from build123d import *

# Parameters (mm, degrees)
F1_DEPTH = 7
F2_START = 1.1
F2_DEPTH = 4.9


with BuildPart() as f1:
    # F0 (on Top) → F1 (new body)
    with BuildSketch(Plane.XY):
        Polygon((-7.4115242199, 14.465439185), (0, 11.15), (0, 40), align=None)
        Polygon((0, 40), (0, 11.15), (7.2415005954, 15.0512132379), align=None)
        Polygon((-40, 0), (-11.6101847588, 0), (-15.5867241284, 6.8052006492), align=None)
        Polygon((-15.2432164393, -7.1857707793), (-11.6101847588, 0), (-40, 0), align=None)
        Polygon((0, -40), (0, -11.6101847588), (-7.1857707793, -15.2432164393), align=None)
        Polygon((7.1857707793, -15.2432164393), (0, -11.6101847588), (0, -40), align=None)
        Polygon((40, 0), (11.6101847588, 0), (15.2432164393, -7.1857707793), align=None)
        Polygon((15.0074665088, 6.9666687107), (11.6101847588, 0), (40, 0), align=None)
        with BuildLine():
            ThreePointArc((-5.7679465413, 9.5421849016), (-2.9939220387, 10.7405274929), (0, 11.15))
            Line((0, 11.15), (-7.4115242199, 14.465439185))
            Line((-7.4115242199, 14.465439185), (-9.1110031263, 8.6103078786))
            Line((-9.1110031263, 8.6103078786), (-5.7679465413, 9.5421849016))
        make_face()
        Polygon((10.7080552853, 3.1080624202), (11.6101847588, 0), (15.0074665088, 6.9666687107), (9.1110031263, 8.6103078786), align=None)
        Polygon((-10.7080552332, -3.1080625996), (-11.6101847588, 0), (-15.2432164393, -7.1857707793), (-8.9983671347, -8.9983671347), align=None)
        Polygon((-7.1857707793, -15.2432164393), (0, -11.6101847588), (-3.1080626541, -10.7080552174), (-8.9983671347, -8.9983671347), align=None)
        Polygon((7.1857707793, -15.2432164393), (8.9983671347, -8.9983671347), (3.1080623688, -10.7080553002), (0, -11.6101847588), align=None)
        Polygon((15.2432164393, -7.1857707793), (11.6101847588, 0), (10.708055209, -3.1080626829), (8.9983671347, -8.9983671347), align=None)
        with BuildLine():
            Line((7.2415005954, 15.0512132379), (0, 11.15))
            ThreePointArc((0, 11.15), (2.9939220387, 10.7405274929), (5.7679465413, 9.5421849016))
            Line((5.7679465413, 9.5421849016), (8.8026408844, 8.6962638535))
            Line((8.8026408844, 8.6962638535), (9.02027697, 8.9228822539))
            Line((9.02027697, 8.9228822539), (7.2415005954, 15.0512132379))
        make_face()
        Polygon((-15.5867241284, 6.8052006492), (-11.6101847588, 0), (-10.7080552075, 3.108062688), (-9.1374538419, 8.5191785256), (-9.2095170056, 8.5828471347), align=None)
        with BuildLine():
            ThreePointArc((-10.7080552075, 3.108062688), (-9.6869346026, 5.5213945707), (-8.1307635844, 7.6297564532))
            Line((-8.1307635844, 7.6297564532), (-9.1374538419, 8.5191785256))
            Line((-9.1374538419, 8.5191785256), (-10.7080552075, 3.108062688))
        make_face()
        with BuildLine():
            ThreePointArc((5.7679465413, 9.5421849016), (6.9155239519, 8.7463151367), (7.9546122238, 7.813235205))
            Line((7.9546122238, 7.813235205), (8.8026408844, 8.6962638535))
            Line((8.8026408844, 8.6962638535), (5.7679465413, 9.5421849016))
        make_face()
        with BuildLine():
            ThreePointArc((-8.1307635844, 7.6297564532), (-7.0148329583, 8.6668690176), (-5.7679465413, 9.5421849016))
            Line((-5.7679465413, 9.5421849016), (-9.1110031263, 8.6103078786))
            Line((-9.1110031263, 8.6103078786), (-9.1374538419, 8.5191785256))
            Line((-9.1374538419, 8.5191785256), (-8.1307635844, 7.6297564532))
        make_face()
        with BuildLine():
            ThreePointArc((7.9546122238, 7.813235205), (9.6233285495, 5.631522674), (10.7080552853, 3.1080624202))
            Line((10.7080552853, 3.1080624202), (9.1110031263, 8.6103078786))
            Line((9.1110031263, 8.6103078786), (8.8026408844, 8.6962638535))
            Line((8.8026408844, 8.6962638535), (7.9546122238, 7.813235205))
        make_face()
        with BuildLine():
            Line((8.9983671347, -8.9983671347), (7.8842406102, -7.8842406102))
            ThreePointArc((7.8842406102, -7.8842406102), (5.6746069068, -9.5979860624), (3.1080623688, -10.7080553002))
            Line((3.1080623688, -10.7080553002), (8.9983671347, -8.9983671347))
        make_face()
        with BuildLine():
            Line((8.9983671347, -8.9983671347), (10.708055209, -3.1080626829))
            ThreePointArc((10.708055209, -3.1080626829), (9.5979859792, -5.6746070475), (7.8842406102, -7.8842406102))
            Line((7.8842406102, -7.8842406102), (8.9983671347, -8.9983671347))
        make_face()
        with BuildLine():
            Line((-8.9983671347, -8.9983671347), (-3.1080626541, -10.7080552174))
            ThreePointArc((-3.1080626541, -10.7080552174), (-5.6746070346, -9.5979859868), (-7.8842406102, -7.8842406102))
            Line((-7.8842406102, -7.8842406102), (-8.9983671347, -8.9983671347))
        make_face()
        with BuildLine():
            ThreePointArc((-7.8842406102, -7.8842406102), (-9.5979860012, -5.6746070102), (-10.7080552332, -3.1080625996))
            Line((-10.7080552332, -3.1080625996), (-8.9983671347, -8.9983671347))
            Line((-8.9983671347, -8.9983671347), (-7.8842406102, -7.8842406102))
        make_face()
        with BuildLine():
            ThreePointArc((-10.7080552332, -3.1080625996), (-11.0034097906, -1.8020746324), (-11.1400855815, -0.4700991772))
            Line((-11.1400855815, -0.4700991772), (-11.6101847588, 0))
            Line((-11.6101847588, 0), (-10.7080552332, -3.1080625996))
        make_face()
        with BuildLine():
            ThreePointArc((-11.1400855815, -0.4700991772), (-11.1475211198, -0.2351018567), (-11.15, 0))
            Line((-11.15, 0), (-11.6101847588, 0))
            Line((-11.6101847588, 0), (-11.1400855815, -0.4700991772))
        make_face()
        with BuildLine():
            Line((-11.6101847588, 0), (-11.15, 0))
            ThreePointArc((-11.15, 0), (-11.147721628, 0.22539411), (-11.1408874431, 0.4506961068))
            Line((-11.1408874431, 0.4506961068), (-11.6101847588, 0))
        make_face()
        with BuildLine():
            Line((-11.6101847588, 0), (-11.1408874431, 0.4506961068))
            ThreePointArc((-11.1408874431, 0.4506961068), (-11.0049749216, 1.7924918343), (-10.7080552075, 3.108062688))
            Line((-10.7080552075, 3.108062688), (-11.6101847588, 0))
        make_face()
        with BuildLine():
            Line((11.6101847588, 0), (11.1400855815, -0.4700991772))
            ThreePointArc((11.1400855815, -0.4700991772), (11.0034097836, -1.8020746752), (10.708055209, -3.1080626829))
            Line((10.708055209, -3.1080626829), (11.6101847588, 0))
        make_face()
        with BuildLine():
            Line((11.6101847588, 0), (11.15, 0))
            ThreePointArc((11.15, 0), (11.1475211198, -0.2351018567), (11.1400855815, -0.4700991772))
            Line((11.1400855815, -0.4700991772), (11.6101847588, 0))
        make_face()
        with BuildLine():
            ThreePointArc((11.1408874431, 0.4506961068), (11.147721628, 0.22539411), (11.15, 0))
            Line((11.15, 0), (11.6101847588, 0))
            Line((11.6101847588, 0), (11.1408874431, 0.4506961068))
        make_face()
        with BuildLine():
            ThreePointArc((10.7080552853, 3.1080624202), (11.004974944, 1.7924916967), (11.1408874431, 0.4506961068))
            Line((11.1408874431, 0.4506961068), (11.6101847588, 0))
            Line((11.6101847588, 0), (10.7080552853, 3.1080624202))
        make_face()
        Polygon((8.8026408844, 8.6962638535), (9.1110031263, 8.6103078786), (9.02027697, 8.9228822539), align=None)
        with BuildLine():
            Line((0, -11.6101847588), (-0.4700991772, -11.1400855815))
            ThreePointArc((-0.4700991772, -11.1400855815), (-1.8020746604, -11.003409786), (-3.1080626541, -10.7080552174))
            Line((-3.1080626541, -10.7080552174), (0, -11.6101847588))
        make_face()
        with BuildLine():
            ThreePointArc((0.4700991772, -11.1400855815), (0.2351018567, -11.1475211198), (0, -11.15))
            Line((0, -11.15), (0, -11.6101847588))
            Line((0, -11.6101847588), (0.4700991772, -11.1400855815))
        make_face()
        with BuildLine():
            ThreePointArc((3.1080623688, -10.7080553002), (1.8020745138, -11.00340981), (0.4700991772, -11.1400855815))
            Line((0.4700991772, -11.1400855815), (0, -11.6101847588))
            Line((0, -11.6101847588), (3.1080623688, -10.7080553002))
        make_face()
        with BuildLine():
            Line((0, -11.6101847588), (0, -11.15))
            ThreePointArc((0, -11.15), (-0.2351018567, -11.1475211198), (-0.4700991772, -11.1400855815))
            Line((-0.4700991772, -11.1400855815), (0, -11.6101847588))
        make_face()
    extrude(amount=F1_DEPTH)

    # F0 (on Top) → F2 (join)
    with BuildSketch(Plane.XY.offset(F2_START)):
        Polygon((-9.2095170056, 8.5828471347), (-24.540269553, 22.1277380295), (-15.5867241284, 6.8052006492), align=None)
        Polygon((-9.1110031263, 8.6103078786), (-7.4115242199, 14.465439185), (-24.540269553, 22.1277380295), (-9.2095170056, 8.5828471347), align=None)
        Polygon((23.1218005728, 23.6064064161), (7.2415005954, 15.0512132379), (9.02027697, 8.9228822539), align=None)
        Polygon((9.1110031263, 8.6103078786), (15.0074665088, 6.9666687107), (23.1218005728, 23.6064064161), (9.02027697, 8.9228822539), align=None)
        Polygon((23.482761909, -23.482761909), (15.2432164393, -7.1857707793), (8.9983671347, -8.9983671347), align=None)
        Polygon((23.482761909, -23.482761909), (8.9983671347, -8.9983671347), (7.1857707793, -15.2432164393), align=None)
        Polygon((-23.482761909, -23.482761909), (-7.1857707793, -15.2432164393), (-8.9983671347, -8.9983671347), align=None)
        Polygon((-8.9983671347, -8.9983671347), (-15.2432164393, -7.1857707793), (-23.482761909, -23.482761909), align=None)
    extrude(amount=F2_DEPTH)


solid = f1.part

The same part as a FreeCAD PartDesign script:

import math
import FreeCAD as App
import Part
import Sketcher

V = App.Vector
Q = App.Units.Quantity

doc = App.newDocument("Part")
body = doc.addObject("PartDesign::Body", "Body")

# Sketch on XY plane
sketch1 = body.newObject("Sketcher::SketchObject", "Sketch")
sketch1.AttachmentSupport = (doc.getObject("XY_Plane"), [""])
sketch1.MapMode = "FlatFace"
sketch1.addGeometry([
    Part.LineSegment(V(-15.24, -7.19, 0), V(-9, -9, 0)),  # 0
    Part.LineSegment(V(-9, -9, 0), V(-7.19, -15.24, 0)),  # 1
    Part.LineSegment(V(-7.19, -15.24, 0), V(0, -40, 0)),  # 2
    Part.LineSegment(V(0, -40, 0), V(7.19, -15.24, 0)),  # 3
    Part.LineSegment(V(7.19, -15.24, 0), V(9, -9, 0)),  # 4
    Part.LineSegment(V(9, -9, 0), V(15.24, -7.19, 0)),  # 5
    Part.LineSegment(V(15.24, -7.19, 0), V(40, 0, 0)),  # 6
    Part.LineSegment(V(40, 0, 0), V(15.01, 6.97, 0)),  # 7
    Part.LineSegment(V(15.01, 6.97, 0), V(9.11, 8.61, 0)),  # 8
    Part.LineSegment(V(9.11, 8.61, 0), V(9.02, 8.92, 0)),  # 9
    Part.LineSegment(V(9.02, 8.92, 0), V(7.24, 15.05, 0)),  # 10
    Part.LineSegment(V(7.24, 15.05, 0), V(0, 40, 0)),  # 11
    Part.LineSegment(V(0, 40, 0), V(-7.41, 14.47, 0)),  # 12
    Part.LineSegment(V(-7.41, 14.47, 0), V(-9.11, 8.61, 0)),  # 13
    Part.LineSegment(V(-9.11, 8.61, 0), V(-9.14, 8.52, 0)),  # 14
    Part.LineSegment(V(-9.14, 8.52, 0), V(-9.21, 8.58, 0)),  # 15
    Part.LineSegment(V(-9.21, 8.58, 0), V(-15.59, 6.81, 0)),  # 16
    Part.LineSegment(V(-15.59, 6.81, 0), V(-40, 0, 0)),  # 17
    Part.LineSegment(V(-40, 0, 0), V(-15.24, -7.19, 0)),  # 18
    Part.ArcOfCircle(Part.Circle(V(0, 0, 0), V(0, 0, 1), 11.15), math.radians(-135), math.radians(-106)),  # 19
    Part.ArcOfCircle(Part.Circle(V(0, 0, 0), V(0, 0, 1), 11.15), math.radians(-164), math.radians(-135)),  # 20
    Part.ArcOfCircle(Part.Circle(V(0, 0, 0), V(0, 0, 1), 11.15), math.radians(-177.58), math.radians(-163.81)),  # 21
    Part.ArcOfCircle(Part.Circle(V(0, 0, 0), V(0, 0, 1), 11.15), math.radians(-180), math.radians(-177.58)),  # 22
    Part.ArcOfCircle(Part.Circle(V(0, 0, 0), V(0, 0, 1), 11.15), math.radians(177.68), math.radians(180)),  # 23
    Part.ArcOfCircle(Part.Circle(V(0, 0, 0), V(0, 0, 1), 11.15), math.radians(163.81), math.radians(177.68)),  # 24
    Part.ArcOfCircle(Part.Circle(V(0, 0, 0), V(0, 0, 1), 11.15), math.radians(137), math.radians(164)),  # 25
    Part.ArcOfCircle(Part.Circle(V(0, 0, 0), V(0, 0, 1), 11.15), math.radians(121.15), math.radians(136.82)),  # 26
    Part.ArcOfCircle(Part.Circle(V(0, 0, 0), V(0, 0, 1), 11.15), math.radians(90), math.radians(121)),  # 27
    Part.ArcOfCircle(Part.Circle(V(0, 0, 0), V(0, 0, 1), 11.15), math.radians(59), math.radians(90)),  # 28
    Part.ArcOfCircle(Part.Circle(V(0, 0, 0), V(0, 0, 1), 11.15), math.radians(44.49), math.radians(58.85)),  # 29
    Part.ArcOfCircle(Part.Circle(V(0, 0, 0), V(0, 0, 1), 11.15), math.radians(16), math.radians(44)),  # 30
    Part.ArcOfCircle(Part.Circle(V(0, 0, 0), V(0, 0, 1), 11.15), math.radians(2.32), math.radians(16.19)),  # 31
    Part.ArcOfCircle(Part.Circle(V(0, 0, 0), V(0, 0, 1), 11.15), math.radians(0), math.radians(2.32)),  # 32
    Part.ArcOfCircle(Part.Circle(V(0, 0, 0), V(0, 0, 1), 11.15), math.radians(-2.42), math.radians(0)),  # 33
    Part.ArcOfCircle(Part.Circle(V(0, 0, 0), V(0, 0, 1), 11.15), math.radians(-16.19), math.radians(-2.42)),  # 34
    Part.ArcOfCircle(Part.Circle(V(0, 0, 0), V(0, 0, 1), 11.15), math.radians(-45), math.radians(-16)),  # 35
    Part.ArcOfCircle(Part.Circle(V(0, 0, 0), V(0, 0, 1), 11.15), math.radians(-74), math.radians(-45)),  # 36
    Part.ArcOfCircle(Part.Circle(V(0, 0, 0), V(0, 0, 1), 11.15), math.radians(-87.58), math.radians(-73.81)),  # 37
    Part.ArcOfCircle(Part.Circle(V(0, 0, 0), V(0, 0, 1), 11.15), math.radians(-90), math.radians(-87.58)),  # 38
    Part.ArcOfCircle(Part.Circle(V(0, 0, 0), V(0, 0, 1), 11.15), math.radians(-92.42), math.radians(-90)),  # 39
    Part.ArcOfCircle(Part.Circle(V(0, 0, 0), V(0, 0, 1), 11.15), math.radians(-106.19), math.radians(-92.42)),  # 40
], False)
sketch1.addConstraint([
    Sketcher.Constraint("Coincident", 0, 2, 1, 1),
    Sketcher.Constraint("Coincident", 1, 2, 2, 1),
    Sketcher.Constraint("Coincident", 2, 2, 3, 1),
    Sketcher.Constraint("Coincident", 3, 2, 4, 1),
    Sketcher.Constraint("Coincident", 4, 2, 5, 1),
    Sketcher.Constraint("Coincident", 5, 2, 6, 1),
    Sketcher.Constraint("Coincident", 6, 2, 7, 1),
    Sketcher.Constraint("Coincident", 7, 2, 8, 1),
    Sketcher.Constraint("Coincident", 8, 2, 9, 1),
    Sketcher.Constraint("Coincident", 9, 2, 10, 1),
    Sketcher.Constraint("Coincident", 10, 2, 11, 1),
    Sketcher.Constraint("Coincident", 11, 2, 12, 1),
    Sketcher.Constraint("Coincident", 12, 2, 13, 1),
    Sketcher.Constraint("Coincident", 13, 2, 14, 1),
    Sketcher.Constraint("Coincident", 14, 2, 15, 1),
    Sketcher.Constraint("Coincident", 15, 2, 16, 1),
    Sketcher.Constraint("Coincident", 16, 2, 17, 1),
    Sketcher.Constraint("Coincident", 17, 2, 18, 1),
    Sketcher.Constraint("Coincident", 18, 2, 0, 1),
    Sketcher.Constraint("Tangent", 19, 1, 20, 2),
    Sketcher.Constraint("Tangent", 20, 1, 21, 2),
    Sketcher.Constraint("Tangent", 21, 1, 22, 2),
    Sketcher.Constraint("Tangent", 22, 1, 23, 2),
    Sketcher.Constraint("Tangent", 23, 1, 24, 2),
    Sketcher.Constraint("Tangent", 24, 1, 25, 2),
    Sketcher.Constraint("Tangent", 25, 1, 26, 2),
    Sketcher.Constraint("Tangent", 26, 1, 27, 2),
    Sketcher.Constraint("Tangent", 27, 1, 28, 2),
    Sketcher.Constraint("Tangent", 28, 1, 29, 2),
    Sketcher.Constraint("Tangent", 29, 1, 30, 2),
    Sketcher.Constraint("Tangent", 30, 1, 31, 2),
    Sketcher.Constraint("Tangent", 31, 1, 32, 2),
    Sketcher.Constraint("Tangent", 32, 1, 33, 2),
    Sketcher.Constraint("Tangent", 33, 1, 34, 2),
    Sketcher.Constraint("Tangent", 34, 1, 35, 2),
    Sketcher.Constraint("Tangent", 35, 1, 36, 2),
    Sketcher.Constraint("Tangent", 36, 1, 37, 2),
    Sketcher.Constraint("Tangent", 37, 1, 38, 2),
    Sketcher.Constraint("Tangent", 38, 1, 39, 2),
    Sketcher.Constraint("Tangent", 39, 1, 40, 2),
    Sketcher.Constraint("Tangent", 40, 1, 19, 2),
    Sketcher.Constraint("Coincident", 19, 3, -1, 1),
    Sketcher.Constraint("Coincident", 21, 3, -1, 1),
    Sketcher.Constraint("Coincident", 23, 3, -1, 1),
    Sketcher.Constraint("Coincident", 25, 3, -1, 1),
    Sketcher.Constraint("Coincident", 27, 3, -1, 1),
    Sketcher.Constraint("Coincident", 29, 3, -1, 1),
    Sketcher.Constraint("Coincident", 31, 3, -1, 1),
    Sketcher.Constraint("Coincident", 33, 3, -1, 1),
    Sketcher.Constraint("Coincident", 35, 3, -1, 1),
    Sketcher.Constraint("Coincident", 37, 3, -1, 1),
    Sketcher.Constraint("Equal", 37, 38),
    Sketcher.Constraint("Symmetric", 2, 2, 11, 2, -1, 1),
    Sketcher.Constraint("Symmetric", 6, 2, 17, 2, -1, 1),
    Sketcher.Constraint("Symmetric", 1, 2, 3, 2, -2),
    Sketcher.Constraint("Symmetric", 0, 2, 4, 2, -2),
    Sketcher.Constraint("Symmetric", 8, 2, 13, 2, -2),
    Sketcher.Constraint("Symmetric", 5, 2, 18, 2, -2),
    Sketcher.Constraint("PointOnObject", 2, 2, -2),
    Sketcher.Constraint("PointOnObject", 6, 2, -1),
    Sketcher.Constraint("PointOnObject", 22, 1, -1),
    Sketcher.Constraint("PointOnObject", 27, 1, -2),
    Sketcher.Constraint("PointOnObject", 32, 1, -1),
    Sketcher.Constraint("PointOnObject", 38, 1, -2),
    Sketcher.Constraint("Parallel", 1, 2),
    Sketcher.Constraint("Perpendicular", 0, 3),
    Sketcher.Constraint("Parallel", 5, 6),
    Sketcher.Constraint("Parallel", 7, 8),
    Sketcher.Constraint("Perpendicular", 6, 9),
    Sketcher.Constraint("Parallel", 9, 10),
    Sketcher.Constraint("Parallel", 10, 11),
    Sketcher.Constraint("Parallel", 4, 12),
    Sketcher.Constraint("Parallel", 13, 14),
    Sketcher.Constraint("Parallel", 16, 17),
    Sketcher.Constraint("Horizontal", 26, 1, 28, 1),
    Sketcher.Constraint("Horizontal", 24, 1, 30, 1),
    Sketcher.Constraint("Horizontal", 23, 1, 31, 1),
    Sketcher.Constraint("Horizontal", 21, 1, 33, 1),
    Sketcher.Constraint("Horizontal", 20, 1, 34, 1),
    Sketcher.Constraint("Horizontal", 19, 1, 35, 1),
    Sketcher.Constraint("Horizontal", 37, 1, 39, 1),
    Sketcher.Constraint("Horizontal", 36, 1, 40, 1),
    Sketcher.Constraint("Vertical", 20, 1, 24, 1),
    Sketcher.Constraint("Equal", 0, 1),
    Sketcher.Constraint("Equal", 3, 6),
    Sketcher.Constraint("Radius", 19, Q("11.15 mm")),
    Sketcher.Constraint("DistanceY", 2, 2, -1, 1, Q("40 mm")),
    Sketcher.Constraint("DistanceX", -1, 1, 10, 2, Q("7.241501 mm")),
    Sketcher.Constraint("DistanceY", -1, 1, 16, 2, Q("6.805201 mm")),
    Sketcher.Constraint("DistanceY", 21, 1, -1, 1, Q("0.470099 mm")),
    Sketcher.Constraint("DistanceX", -1, 1, 37, 1, Q("0.470099 mm")),
    Sketcher.Constraint("Distance", 2, Q("25.77855 mm")),
    Sketcher.Constraint("Distance", 7, Q("25.94535 mm")),
    Sketcher.Constraint("Distance", 8, Q("6.121261 mm")),
    Sketcher.Constraint("Distance", 10, Q("6.381261 mm")),
    Sketcher.Constraint("Distance", 14, Q("0.09489 mm")),
    Sketcher.Constraint("Distance", 15, Q("0.09616 mm")),
    Sketcher.Constraint("Distance", 17, Q("25.344009 mm")),
    Sketcher.Constraint("DistanceX", 1, 2, -1, 1, Q("7.185771 mm")),
    Sketcher.Constraint("DistanceY", -1, 1, 12, 2, Q("14.465439 mm")),
    Sketcher.Constraint("DistanceX", 19, 1, -1, 1, Q("7.884241 mm")),
    Sketcher.Constraint("DistanceX", 20, 1, -1, 1, Q("10.708055 mm")),
    Sketcher.Constraint("DistanceX", 23, 1, -1, 1, Q("11.140887 mm")),
    Sketcher.Constraint("DistanceX", 25, 1, -1, 1, Q("8.130764 mm")),
    Sketcher.Constraint("DistanceX", 26, 1, -1, 1, Q("5.767947 mm")),
    Sketcher.Constraint("DistanceX", -1, 1, 29, 1, Q("7.954612 mm")),
    Sketcher.Constraint("DistanceX", -1, 1, 36, 1, Q("3.108062 mm")),
])
pad1 = body.newObject("PartDesign::Pad", "Pad")
pad1.Profile = sketch1
pad1.Length = 7

# Sketch on XY plane
sketch2 = body.newObject("Sketcher::SketchObject", "Sketch001")
sketch2.AttachmentSupport = (doc.getObject("XY_Plane"), [""])
sketch2.MapMode = "FlatFace"
sketch2.AttachmentOffset = App.Placement(V(0, 0, 1.1), App.Rotation())
sketch2.addGeometry([
    Part.LineSegment(V(-24.54, 22.13, 0), V(-15.59, 6.81, 0)),  # 0
    Part.LineSegment(V(-15.59, 6.81, 0), V(-9.21, 8.58, 0)),  # 1
    Part.LineSegment(V(-9.21, 8.58, 0), V(-9.11, 8.61, 0)),  # 2
    Part.LineSegment(V(-9.11, 8.61, 0), V(-7.41, 14.47, 0)),  # 3
    Part.LineSegment(V(-7.41, 14.47, 0), V(-24.54, 22.13, 0)),  # 4
    Part.LineSegment(V(23.12, 23.61, 0), V(7.24, 15.05, 0)),  # 5
    Part.LineSegment(V(7.24, 15.05, 0), V(9.02, 8.92, 0)),  # 6
    Part.LineSegment(V(9.02, 8.92, 0), V(9.11, 8.61, 0)),  # 7
    Part.LineSegment(V(9.11, 8.61, 0), V(15.01, 6.97, 0)),  # 8
    Part.LineSegment(V(15.01, 6.97, 0), V(23.12, 23.61, 0)),  # 9
    Part.LineSegment(V(23.48, -23.48, 0), V(15.24, -7.19, 0)),  # 10
    Part.LineSegment(V(15.24, -7.19, 0), V(9, -9, 0)),  # 11
    Part.LineSegment(V(9, -9, 0), V(7.19, -15.24, 0)),  # 12
    Part.LineSegment(V(7.19, -15.24, 0), V(23.48, -23.48, 0)),  # 13
    Part.LineSegment(V(-23.48, -23.48, 0), V(-7.19, -15.24, 0)),  # 14
    Part.LineSegment(V(-7.19, -15.24, 0), V(-9, -9, 0)),  # 15
    Part.LineSegment(V(-9, -9, 0), V(-15.24, -7.19, 0)),  # 16
    Part.LineSegment(V(-15.24, -7.19, 0), V(-23.48, -23.48, 0)),  # 17
], False)
sketch2.addConstraint([
    Sketcher.Constraint("Coincident", 0, 2, 1, 1),
    Sketcher.Constraint("Coincident", 1, 2, 2, 1),
    Sketcher.Constraint("Coincident", 2, 2, 3, 1),
    Sketcher.Constraint("Coincident", 3, 2, 4, 1),
    Sketcher.Constraint("Coincident", 4, 2, 0, 1),
    Sketcher.Constraint("Coincident", 5, 2, 6, 1),
    Sketcher.Constraint("Coincident", 6, 2, 7, 1),
    Sketcher.Constraint("Coincident", 7, 2, 8, 1),
    Sketcher.Constraint("Coincident", 8, 2, 9, 1),
    Sketcher.Constraint("Coincident", 9, 2, 5, 1),
    Sketcher.Constraint("Coincident", 10, 2, 11, 1),
    Sketcher.Constraint("Coincident", 11, 2, 12, 1),
    Sketcher.Constraint("Coincident", 12, 2, 13, 1),
    Sketcher.Constraint("Coincident", 13, 2, 10, 1),
    Sketcher.Constraint("Coincident", 14, 2, 15, 1),
    Sketcher.Constraint("Coincident", 15, 2, 16, 1),
    Sketcher.Constraint("Coincident", 16, 2, 17, 1),
    Sketcher.Constraint("Coincident", 17, 2, 14, 1),
    Sketcher.Constraint("Symmetric", 2, 2, 7, 2, -2),
    Sketcher.Constraint("Symmetric", 12, 2, 14, 2, -2),
    Sketcher.Constraint("Symmetric", 11, 2, 15, 2, -2),
    Sketcher.Constraint("Symmetric", 10, 2, 16, 2, -2),
    Sketcher.Constraint("Symmetric", 13, 2, 17, 2, -2),
    Sketcher.Constraint("Parallel", 1, 2),
    Sketcher.Constraint("Parallel", 6, 7),
    Sketcher.Constraint("Perpendicular", 7, 11),
    Sketcher.Constraint("Parallel", 3, 12),
    Sketcher.Constraint("Perpendicular", 10, 14),
    Sketcher.Constraint("Perpendicular", 11, 15),
    Sketcher.Constraint("Equal", 11, 12),
    Sketcher.Constraint("DistanceX", 0, 2, 6, 2, Q("24.607001 mm")),
    Sketcher.Constraint("DistanceY", -1, 1, 0, 2, Q("6.805201 mm")),
    Sketcher.Constraint("DistanceX", -1, 1, 5, 2, Q("7.241501 mm")),
    Sketcher.Constraint("DistanceX", -1, 1, 9, 2, Q("23.121801 mm")),
    Sketcher.Constraint("DistanceX", 0, 2, 3, 2, Q("8.1752 mm")),
    Sketcher.Constraint("DistanceY", 3, 2, 4, 2, Q("7.662299 mm")),
    Sketcher.Constraint("DistanceY", 7, 2, 9, 2, Q("14.996099 mm")),
    Sketcher.Constraint("DistanceX", 11, 2, 8, 2, Q("6.009099 mm")),
    Sketcher.Constraint("DistanceY", 12, 2, 6, 2, Q("24.166099 mm")),
    Sketcher.Constraint("DistanceX", 16, 2, 1, 2, Q("6.033699 mm")),
    Sketcher.Constraint("Distance", 0, Q("17.746722 mm")),
    Sketcher.Constraint("Distance", 2, Q("0.10227 mm")),
    Sketcher.Constraint("Distance", 5, Q("18.038161 mm")),
    Sketcher.Constraint("Distance", 6, Q("6.381261 mm")),
    Sketcher.Constraint("Distance", 8, Q("6.121261 mm")),
    Sketcher.Constraint("Distance", 10, Q("18.26149 mm")),
    Sketcher.Constraint("DistanceY", -1, 1, 3, 2, Q("14.465439 mm")),
    Sketcher.Constraint("DistanceX", 4, 2, -1, 1, Q("24.54027 mm")),
    Sketcher.Constraint("DistanceY", -1, 1, 8, 2, Q("6.966669 mm")),
])
pad2 = body.newObject("PartDesign::Pad", "Pad001")
pad2.Profile = sketch2
pad2.Length = 4.9

doc.recompute()
